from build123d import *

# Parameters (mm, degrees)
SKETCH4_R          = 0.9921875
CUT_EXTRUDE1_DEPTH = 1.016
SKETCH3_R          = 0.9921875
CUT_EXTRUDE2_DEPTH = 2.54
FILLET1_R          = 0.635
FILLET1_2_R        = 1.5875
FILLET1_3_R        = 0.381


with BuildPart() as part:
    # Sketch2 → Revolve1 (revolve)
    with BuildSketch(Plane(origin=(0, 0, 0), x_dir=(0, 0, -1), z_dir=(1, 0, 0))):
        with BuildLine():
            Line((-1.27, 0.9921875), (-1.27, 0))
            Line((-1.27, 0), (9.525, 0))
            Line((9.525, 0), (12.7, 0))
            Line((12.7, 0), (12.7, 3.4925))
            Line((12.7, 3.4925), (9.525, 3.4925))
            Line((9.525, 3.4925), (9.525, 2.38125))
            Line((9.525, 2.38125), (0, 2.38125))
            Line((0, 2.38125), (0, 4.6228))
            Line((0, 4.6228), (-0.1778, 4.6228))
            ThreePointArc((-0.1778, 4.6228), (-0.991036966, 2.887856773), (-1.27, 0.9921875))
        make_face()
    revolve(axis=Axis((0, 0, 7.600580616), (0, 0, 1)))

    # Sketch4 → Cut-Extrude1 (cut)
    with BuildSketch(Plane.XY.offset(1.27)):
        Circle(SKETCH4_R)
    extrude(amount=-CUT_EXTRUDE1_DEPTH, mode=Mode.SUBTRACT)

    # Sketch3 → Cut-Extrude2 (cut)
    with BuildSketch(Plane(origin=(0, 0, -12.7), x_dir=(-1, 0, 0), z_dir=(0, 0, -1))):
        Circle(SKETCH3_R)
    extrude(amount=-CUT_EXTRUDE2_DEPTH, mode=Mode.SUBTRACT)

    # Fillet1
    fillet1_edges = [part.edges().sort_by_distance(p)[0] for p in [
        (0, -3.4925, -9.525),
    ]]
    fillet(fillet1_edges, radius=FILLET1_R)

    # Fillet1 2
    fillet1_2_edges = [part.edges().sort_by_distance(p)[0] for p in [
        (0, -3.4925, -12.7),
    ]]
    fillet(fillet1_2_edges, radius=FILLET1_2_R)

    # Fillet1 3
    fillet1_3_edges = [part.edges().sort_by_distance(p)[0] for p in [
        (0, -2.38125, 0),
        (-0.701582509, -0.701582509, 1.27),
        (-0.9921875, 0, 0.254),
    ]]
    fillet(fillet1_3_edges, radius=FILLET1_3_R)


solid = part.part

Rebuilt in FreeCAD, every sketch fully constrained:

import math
import FreeCAD as App
import Part
import Sketcher
from FreeCAD import Vector
Q = App.Units.Quantity


def edges_at(feature, points):
    """Names of the edges that pass closest to the given points."""
    edges = feature.Shape.Edges
    near = lambda p: min(range(len(edges)), key=lambda i: edges[i].distToShape(Part.Vertex(*p))[0])
    return sorted({f"Edge{near(p) + 1}" for p in points})

doc = App.newDocument("Part")
body = doc.addObject("PartDesign::Body", "Body")

# Sketch on YZ plane
sketch1 = doc.addObject("Sketcher::SketchObject", "Sketch")
body.addObject(sketch1)
sketch1.AttachmentSupport = (doc.YZ_Plane, [""])
sketch1.MapMode = "FlatFace"
sketch1.addGeometry([
    Part.LineSegment(Vector(0.992188, 1.27, 0), Vector(0, 1.27, 0)),  # 0
    Part.LineSegment(Vector(0, 1.27, 0), Vector(0, -12.7, 0)),  # 1
    Part.LineSegment(Vector(0, -12.7, 0), Vector(3.4925, -12.7, 0)),  # 2
    Part.LineSegment(Vector(3.4925, -12.7, 0), Vector(3.4925, -9.525, 0)),  # 3
    Part.LineSegment(Vector(3.4925, -9.525, 0), Vector(2.38125, -9.525, 0)),  # 4
    Part.LineSegment(Vector(2.38125, -9.525, 0), Vector(2.38125, 0, 0)),  # 5
    Part.LineSegment(Vector(2.38125, 0, 0), Vector(4.6228, 0, 0)),  # 6
    Part.LineSegment(Vector(4.6228, 0, 0), Vector(4.6228, 0.1778, 0)),  # 7
    Part.ArcOfCircle(Part.Circle(Vector(0.992187, -5.31041, 0), Vector(0, 0, 1), 6.58041), math.radians(56.514191), math.radians(90)),  # 8
], False)
sketch1.addConstraint([
    Sketcher.Constraint("Coincident", 0, 2, 1, 1),
    Sketcher.Constraint("Coincident", 1, 2, 2, 1),
    Sketcher.Constraint("Coincident", 2, 2, 3, 1),
    Sketcher.Constraint("Coincident", 3, 2, 4, 1),
    Sketcher.Constraint("Coincident", 4, 2, 5, 1),
    Sketcher.Constraint("Coincident", 5, 2, 6, 1),
    Sketcher.Constraint("Coincident", 6, 2, 7, 1),
    Sketcher.Constraint("Coincident", 7, 2, 8, 1),
    Sketcher.Constraint("Tangent", 8, 2, 0, 1),
    Sketcher.Constraint("Horizontal", 0),
    Sketcher.Constraint("Vertical", 1),
    Sketcher.Constraint("Horizontal", 2),
    Sketcher.Constraint("Vertical", 3),
    Sketcher.Constraint("Horizontal", 4),
    Sketcher.Constraint("Vertical", 5),
    Sketcher.Constraint("Horizontal", 6),
    Sketcher.Constraint("Vertical", 7),
    Sketcher.Constraint("PointOnObject", 0, 2, -2),
    Sketcher.Constraint("PointOnObject", 5, 2, -1),
    Sketcher.Constraint("DistanceY", 1, 2, 1, 1, Q("0.55 in")),
    Sketcher.Constraint("DistanceY", 1, 2, -1, 1, Q("0.5 in")),
    Sketcher.Constraint("DistanceY", 3, 1, 3, 2, Q("0.125 in")),
    Sketcher.Constraint("DistanceY", 7, 1, 7, 2, Q("0.007 in")),
    Sketcher.Constraint("DistanceX", 2, 1, 2, 2, Q("0.1375 in")),
    Sketcher.Constraint("DistanceX", -1, 1, 4, 2, Q("0.09375 in")),
    Sketcher.Constraint("DistanceX", -1, 1, 6, 2, Q("0.182 in")),
    Sketcher.Constraint("Radius", 8, Q("6.58041 mm")),
])
revolution = doc.addObject("PartDesign::Revolution", "Revolution")
body.addObject(revolution)
revolution.Profile = sketch1
revolution.ReferenceAxis = (sketch1, ["V_Axis"])
revolution.Angle = 360

# Sketch on XY plane
sketch2 = doc.addObject("Sketcher::SketchObject", "Sketch001")
body.addObject(sketch2)
sketch2.AttachmentSupport = (doc.XY_Plane, [""])
sketch2.MapMode = "FlatFace"
sketch2.AttachmentOffset = App.Placement(Vector(0, 0, 0.05 * 25.4), App.Rotation())
sketch2.addGeometry(Part.Circle(Vector(0, 0, 0), Vector(0, 0, 1), 0.992188), False)
sketch2.addConstraint([
    Sketcher.Constraint("Coincident", 0, 3, -1, 1),
    Sketcher.Constraint("Diameter", 0, Q("0.078125 in")),
])
pocket1 = doc.addObject("PartDesign::Pocket", "Pocket")
body.addObject(pocket1)
pocket1.Profile = sketch2
pocket1.Length = Q("0.04 in")

# Sketch on XY plane
sketch3 = doc.addObject("Sketcher::SketchObject", "Sketch002")
body.addObject(sketch3)
sketch3.AttachmentSupport = (doc.XY_Plane, [""])
sketch3.MapMode = "FlatFace"
sketch3.AttachmentOffset = App.Placement(Vector(0, 0, -0.5 * 25.4), App.Rotation())
sketch3.addGeometry(Part.Circle(Vector(0, 0, 0), Vector(0, 0, 1), 0.992188), False)
sketch3.addConstraint([
    Sketcher.Constraint("Coincident", 0, 3, -1, 1),
    Sketcher.Constraint("Diameter", 0, Q("0.078125 in")),
])
pocket2 = doc.addObject("PartDesign::Pocket", "Pocket001")
body.addObject(pocket2)
pocket2.Profile = sketch3
pocket2.Length = Q("0.1 in")
pocket2.Reversed = True
doc.recompute()

fillet = doc.addObject("PartDesign::Fillet", "Fillet")
body.addObject(fillet)
fillet.Base = (pocket2, edges_at(pocket2, [(0, -3.493, -9.525)]))
fillet.Radius = Q("0.025 in")
doc.recompute()

fillet2 = doc.addObject("PartDesign::Fillet", "Fillet001")
body.addObject(fillet2)
fillet2.Base = (fillet, edges_at(fillet, [(0, -3.493, -12.7)]))
fillet2.Radius = Q("0.0625 in")
doc.recompute()

fillet3 = doc.addObject("PartDesign::Fillet", "Fillet002")
body.addObject(fillet3)
fillet3.Base = (fillet2, edges_at(fillet2, [(0, -2.381, 0), (-0.702, -0.702, 1.27), (-0.992, 0, 0.254)]))
fillet3.Radius = Q("0.015 in")

doc.recompute()
